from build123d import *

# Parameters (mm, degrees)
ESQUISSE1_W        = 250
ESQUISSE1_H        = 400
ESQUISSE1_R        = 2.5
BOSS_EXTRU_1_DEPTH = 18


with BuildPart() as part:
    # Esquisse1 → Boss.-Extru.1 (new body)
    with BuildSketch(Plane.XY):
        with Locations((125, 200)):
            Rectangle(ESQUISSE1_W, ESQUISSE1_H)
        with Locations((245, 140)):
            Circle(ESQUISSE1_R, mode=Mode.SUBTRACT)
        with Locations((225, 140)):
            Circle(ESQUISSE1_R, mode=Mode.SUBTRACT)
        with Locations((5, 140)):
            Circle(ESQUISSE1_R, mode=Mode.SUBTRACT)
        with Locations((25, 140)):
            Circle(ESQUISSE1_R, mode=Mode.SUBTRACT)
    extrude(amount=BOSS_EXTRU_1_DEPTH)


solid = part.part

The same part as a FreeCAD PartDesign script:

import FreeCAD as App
import Part
import Sketcher

V = App.Vector
Q = App.Units.Quantity

doc = App.newDocument("Part")
body = doc.addObject("PartDesign::Body", "Body")

# Sketch on XY plane
sketch1 = doc.addObject("Sketcher::SketchObject", "Sketch")
body.addObject(sketch1)
sketch1.AttachmentSupport = (doc.XY_Plane, [""])
sketch1.MapMode = "FlatFace"
sketch1.addGeometry(Part.LineSegment(V(0, 400, 0), V(0, 0, 0)), False)
sketch1.addGeometry(Part.LineSegment(V(0, 0, 0), V(250, 0, 0)), False)
sketch1.addGeometry(Part.LineSegment(V(250, 0, 0), V(250, 400, 0)), False)
sketch1.addGeometry(Part.LineSegment(V(250, 400, 0), V(0, 400, 0)), False)
sketch1.addGeometry(Part.Circle(V(5, 140, 0), V(0, 0, 1), 2.5), False)
sketch1.addGeometry(Part.Circle(V(25, 140, 0), V(0, 0, 1), 2.5), False)
sketch1.addGeometry(Part.Circle(V(225, 140, 0), V(0, 0, 1), 2.5), False)
sketch1.addGeometry(Part.Circle(V(245, 140, 0), V(0, 0, 1), 2.5), False)
sketch1.addConstraint(Sketcher.Constraint("Coincident", 0, 2, 1, 1))
sketch1.addConstraint(Sketcher.Constraint("Coincident", 1, 2, 2, 1))
sketch1.addConstraint(Sketcher.Constraint("Coincident", 2, 2, 3, 1))
sketch1.addConstraint(Sketcher.Constraint("Coincident", 3, 2, 0, 1))
sketch1.addConstraint(Sketcher.Constraint("Vertical", 0))
sketch1.addConstraint(Sketcher.Constraint("Horizontal", 1))
sketch1.addConstraint(Sketcher.Constraint("Vertical", 2))
sketch1.addConstraint(Sketcher.Constraint("Horizontal", 3))
sketch1.addConstraint(Sketcher.Constraint("Coincident", 0, 2, -1, 1))
sketch1.addConstraint(Sketcher.Constraint("Equal", 4, 5))
sketch1.addConstraint(Sketcher.Constraint("Equal", 5, 6))
sketch1.addConstraint(Sketcher.Constraint("Equal", 6, 7))
sketch1.addConstraint(Sketcher.Constraint("Horizontal", 4, 3, 5, 3))
sketch1.addConstraint(Sketcher.Constraint("Horizontal", 5, 3, 6, 3))
sketch1.addConstraint(Sketcher.Constraint("Horizontal", 6, 3, 7, 3))
sketch1.addConstraint(Sketcher.Constraint("Diameter", 4, Q("5 mm")))
sketch1.addConstraint(Sketcher.Constraint("DistanceX", 1, 1, 1, 2, Q("250 mm")))
sketch1.addConstraint(Sketcher.Constraint("DistanceY", 0, 2, 0, 1, Q("400 mm")))
sketch1.addConstraint(Sketcher.Constraint("DistanceX", -1, 1, 4, 3, Q("5 mm")))
sketch1.addConstraint(Sketcher.Constraint("DistanceY", -1, 1, 4, 3, Q("140 mm")))
sketch1.addConstraint(Sketcher.Constraint("DistanceX", -1, 1, 5, 3, Q("25 mm")))
sketch1.addConstraint(Sketcher.Constraint("DistanceX", -1, 1, 6, 3, Q("225 mm")))
sketch1.addConstraint(Sketcher.Constraint("DistanceX", -1, 1, 7, 3, Q("245 mm")))
pad1 = doc.addObject("PartDesign::Pad", "Pad")
body.addObject(pad1)
pad1.Profile = sketch1
pad1.Length = 18

doc.recompute()
